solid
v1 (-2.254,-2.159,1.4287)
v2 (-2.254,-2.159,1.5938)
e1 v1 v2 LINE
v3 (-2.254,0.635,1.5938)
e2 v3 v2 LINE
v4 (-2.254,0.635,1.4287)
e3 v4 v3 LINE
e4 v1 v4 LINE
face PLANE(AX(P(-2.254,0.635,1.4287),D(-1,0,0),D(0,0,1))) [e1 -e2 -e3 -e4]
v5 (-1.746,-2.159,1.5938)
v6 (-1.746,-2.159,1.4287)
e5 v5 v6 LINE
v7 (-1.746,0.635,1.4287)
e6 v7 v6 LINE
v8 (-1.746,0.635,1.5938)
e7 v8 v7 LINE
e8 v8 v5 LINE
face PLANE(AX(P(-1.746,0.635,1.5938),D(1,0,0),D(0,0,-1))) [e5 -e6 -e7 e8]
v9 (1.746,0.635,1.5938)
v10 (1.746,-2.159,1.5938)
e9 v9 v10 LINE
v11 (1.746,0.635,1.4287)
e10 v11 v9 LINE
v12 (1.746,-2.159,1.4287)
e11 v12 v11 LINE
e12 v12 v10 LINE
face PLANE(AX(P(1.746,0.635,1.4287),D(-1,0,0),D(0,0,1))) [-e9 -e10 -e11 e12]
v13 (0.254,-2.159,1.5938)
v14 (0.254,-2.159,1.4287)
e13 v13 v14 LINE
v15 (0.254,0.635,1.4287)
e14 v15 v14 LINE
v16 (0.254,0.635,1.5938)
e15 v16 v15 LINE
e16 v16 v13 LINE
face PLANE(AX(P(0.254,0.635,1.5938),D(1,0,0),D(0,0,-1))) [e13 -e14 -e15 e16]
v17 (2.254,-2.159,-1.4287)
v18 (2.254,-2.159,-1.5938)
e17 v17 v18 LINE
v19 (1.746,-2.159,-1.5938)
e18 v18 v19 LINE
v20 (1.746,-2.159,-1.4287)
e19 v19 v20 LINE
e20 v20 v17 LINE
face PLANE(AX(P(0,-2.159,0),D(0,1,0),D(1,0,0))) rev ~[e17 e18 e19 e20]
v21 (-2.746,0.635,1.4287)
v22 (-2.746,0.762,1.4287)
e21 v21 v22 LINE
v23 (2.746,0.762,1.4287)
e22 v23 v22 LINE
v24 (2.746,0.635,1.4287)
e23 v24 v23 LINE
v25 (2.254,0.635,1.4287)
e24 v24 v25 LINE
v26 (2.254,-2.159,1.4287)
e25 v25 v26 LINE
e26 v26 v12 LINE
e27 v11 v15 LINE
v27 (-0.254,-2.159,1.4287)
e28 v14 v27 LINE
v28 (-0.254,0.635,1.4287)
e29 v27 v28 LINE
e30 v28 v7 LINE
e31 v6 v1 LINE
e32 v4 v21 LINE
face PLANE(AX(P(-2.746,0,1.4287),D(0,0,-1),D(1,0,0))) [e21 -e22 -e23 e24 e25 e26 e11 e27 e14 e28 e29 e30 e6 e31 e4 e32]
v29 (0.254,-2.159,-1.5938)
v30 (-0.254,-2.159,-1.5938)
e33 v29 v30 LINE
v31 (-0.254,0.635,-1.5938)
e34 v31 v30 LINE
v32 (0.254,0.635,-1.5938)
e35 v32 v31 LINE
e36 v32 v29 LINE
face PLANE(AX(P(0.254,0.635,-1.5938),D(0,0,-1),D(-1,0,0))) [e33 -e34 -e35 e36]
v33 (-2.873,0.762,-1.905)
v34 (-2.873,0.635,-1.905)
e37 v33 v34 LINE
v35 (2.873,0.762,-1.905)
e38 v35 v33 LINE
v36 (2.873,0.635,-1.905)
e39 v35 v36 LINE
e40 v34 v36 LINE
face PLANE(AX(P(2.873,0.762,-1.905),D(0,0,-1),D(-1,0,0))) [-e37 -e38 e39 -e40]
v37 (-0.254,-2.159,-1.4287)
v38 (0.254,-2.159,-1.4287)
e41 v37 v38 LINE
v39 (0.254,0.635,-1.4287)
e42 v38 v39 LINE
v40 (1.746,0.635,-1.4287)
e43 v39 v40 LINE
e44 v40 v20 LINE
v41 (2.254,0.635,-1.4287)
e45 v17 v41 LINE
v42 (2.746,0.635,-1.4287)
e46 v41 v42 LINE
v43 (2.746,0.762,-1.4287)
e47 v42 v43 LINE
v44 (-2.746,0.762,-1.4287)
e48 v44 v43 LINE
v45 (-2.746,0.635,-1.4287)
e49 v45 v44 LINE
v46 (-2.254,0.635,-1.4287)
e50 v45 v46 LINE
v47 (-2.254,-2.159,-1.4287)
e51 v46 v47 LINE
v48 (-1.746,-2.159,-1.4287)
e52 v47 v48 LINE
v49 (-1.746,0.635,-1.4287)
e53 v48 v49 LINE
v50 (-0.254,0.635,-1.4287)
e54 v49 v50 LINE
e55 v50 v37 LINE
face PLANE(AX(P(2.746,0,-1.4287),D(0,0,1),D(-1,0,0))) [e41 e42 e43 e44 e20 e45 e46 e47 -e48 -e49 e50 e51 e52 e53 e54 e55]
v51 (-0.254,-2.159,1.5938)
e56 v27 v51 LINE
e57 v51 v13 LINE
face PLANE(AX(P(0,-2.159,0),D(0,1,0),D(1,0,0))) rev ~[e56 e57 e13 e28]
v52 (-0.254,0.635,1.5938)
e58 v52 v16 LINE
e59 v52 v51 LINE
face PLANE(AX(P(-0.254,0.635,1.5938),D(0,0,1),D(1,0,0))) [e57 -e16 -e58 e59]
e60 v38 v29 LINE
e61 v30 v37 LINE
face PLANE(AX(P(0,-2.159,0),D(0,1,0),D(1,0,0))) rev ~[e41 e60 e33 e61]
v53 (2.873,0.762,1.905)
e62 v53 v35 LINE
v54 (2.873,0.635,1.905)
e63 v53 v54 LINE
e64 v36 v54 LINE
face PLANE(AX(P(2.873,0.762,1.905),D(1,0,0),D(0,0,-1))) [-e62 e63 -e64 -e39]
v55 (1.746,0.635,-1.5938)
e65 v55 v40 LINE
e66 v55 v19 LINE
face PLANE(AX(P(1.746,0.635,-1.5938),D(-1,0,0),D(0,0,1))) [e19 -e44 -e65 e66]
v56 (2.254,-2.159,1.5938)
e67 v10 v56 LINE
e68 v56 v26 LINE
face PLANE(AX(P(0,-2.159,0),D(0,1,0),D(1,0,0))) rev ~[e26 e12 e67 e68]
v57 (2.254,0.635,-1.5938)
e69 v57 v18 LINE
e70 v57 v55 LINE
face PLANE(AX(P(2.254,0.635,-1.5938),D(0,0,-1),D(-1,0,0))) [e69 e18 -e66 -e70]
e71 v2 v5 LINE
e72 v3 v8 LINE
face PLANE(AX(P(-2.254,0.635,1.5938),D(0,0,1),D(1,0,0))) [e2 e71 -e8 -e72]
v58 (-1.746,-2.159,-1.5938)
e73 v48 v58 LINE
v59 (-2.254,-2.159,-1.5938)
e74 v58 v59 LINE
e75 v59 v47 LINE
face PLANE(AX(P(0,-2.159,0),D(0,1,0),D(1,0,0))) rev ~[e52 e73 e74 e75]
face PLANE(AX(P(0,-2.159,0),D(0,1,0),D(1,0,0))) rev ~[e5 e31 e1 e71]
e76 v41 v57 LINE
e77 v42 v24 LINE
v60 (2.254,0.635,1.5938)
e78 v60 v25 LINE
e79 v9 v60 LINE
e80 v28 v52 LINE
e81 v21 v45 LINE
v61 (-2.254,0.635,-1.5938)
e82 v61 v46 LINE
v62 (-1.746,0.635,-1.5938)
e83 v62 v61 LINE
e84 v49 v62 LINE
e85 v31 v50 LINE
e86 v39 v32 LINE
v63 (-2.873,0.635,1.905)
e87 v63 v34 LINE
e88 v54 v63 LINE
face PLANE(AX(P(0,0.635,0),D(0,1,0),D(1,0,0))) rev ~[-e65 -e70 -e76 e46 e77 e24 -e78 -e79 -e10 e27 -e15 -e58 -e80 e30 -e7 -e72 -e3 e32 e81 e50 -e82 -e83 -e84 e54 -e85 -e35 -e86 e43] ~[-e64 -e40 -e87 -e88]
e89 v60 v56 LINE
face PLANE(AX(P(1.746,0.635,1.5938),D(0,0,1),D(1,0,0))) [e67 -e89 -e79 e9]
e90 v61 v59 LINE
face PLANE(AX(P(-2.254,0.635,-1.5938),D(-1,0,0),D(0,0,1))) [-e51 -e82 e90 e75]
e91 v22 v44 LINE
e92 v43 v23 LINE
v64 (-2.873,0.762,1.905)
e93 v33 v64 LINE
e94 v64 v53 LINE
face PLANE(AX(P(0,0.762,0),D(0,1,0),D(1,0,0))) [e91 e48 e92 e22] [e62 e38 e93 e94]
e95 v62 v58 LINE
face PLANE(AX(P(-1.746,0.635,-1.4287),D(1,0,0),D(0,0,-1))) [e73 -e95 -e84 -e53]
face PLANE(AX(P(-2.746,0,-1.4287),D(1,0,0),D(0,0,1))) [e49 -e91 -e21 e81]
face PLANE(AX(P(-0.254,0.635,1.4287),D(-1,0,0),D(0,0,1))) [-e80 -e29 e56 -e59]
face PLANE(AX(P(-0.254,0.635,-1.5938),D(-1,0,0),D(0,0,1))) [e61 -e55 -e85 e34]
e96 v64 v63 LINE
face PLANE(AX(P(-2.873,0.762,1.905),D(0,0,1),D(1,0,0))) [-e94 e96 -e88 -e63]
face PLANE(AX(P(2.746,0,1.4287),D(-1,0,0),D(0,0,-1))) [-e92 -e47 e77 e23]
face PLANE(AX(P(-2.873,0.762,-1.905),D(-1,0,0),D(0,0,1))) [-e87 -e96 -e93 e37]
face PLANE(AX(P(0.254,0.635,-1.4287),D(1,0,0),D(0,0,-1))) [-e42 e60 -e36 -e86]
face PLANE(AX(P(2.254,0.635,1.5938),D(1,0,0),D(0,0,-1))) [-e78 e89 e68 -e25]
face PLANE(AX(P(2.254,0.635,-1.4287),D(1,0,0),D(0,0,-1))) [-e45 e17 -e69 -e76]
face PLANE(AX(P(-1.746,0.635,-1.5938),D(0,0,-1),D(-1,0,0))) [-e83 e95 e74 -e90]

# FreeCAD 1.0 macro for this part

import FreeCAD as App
import Part
import Sketcher
Q = App.Units.Quantity

doc = App.newDocument("Part")
body = doc.addObject("PartDesign::Body", "Body")

# Sketch on XZ plane
sketch1 = body.newObject("Sketcher::SketchObject", "Sketch")
sketch1.AttachmentSupport = (doc.getObject("XZ_Plane"), [""])
sketch1.MapMode = "FlatFace"
sketch1.AttachmentOffset = App.Placement(App.Vector(0, 0, -0.03 * 25.4), App.Rotation())
sketch1.addGeometry(Part.LineSegment(App.Vector(2.9, -1.9, 0), App.Vector(-2.9, -1.9, 0)), False)
sketch1.addGeometry(Part.LineSegment(App.Vector(-2.9, -1.9, 0), App.Vector(-2.9, 1.9, 0)), False)
sketch1.addGeometry(Part.LineSegment(App.Vector(-2.9, 1.9, 0), App.Vector(2.9, 1.9, 0)), False)
sketch1.addGeometry(Part.LineSegment(App.Vector(2.9, 1.9, 0), App.Vector(2.9, -1.9, 0)), False)
sketch1.addConstraint(Sketcher.Constraint("Coincident", 0, 2, 1, 1))
sketch1.addConstraint(Sketcher.Constraint("Coincident", 1, 2, 2, 1))
sketch1.addConstraint(Sketcher.Constraint("Coincident", 2, 2, 3, 1))
sketch1.addConstraint(Sketcher.Constraint("Coincident", 3, 2, 0, 1))
sketch1.addConstraint(Sketcher.Constraint("Horizontal", 0))
sketch1.addConstraint(Sketcher.Constraint("Vertical", 1))
sketch1.addConstraint(Sketcher.Constraint("Horizontal", 2))
sketch1.addConstraint(Sketcher.Constraint("Vertical", 3))
sketch1.addConstraint(Sketcher.Constraint("Symmetric", 0, 2, 2, 2, -1, 1))
sketch1.addConstraint(Sketcher.Constraint("DistanceY", 1, 1, 1, 2, Q("0.15 in")))
sketch1.addConstraint(Sketcher.Constraint("DistanceX", 0, 2, 0, 1, 5.746))
pad1 = body.newObject("PartDesign::Pad", "Pad")
pad1.Profile = sketch1
pad1.Length = Q("0.115 in")

# Sketch on XZ plane
sketch2 = body.newObject("Sketcher::SketchObject", "Sketch001")
sketch2.AttachmentSupport = (doc.getObject("XZ_Plane"), [""])
sketch2.MapMode = "FlatFace"
sketch2.AttachmentOffset = App.Placement(App.Vector(0, 0, -0.025 * 25.4), App.Rotation())
sketch2.addGeometry(Part.LineSegment(App.Vector(3, -2.54, 0), App.Vector(-3, -2.54, 0)), False)
sketch2.addGeometry(Part.LineSegment(App.Vector(-3, -2.54, 0), App.Vector(-3, 2.54, 0)), False)
sketch2.addGeometry(Part.LineSegment(App.Vector(-3, 2.54, 0), App.Vector(3, 2.54, 0)), False)
sketch2.addGeometry(Part.LineSegment(App.Vector(3, 2.54, 0), App.Vector(3, -2.54, 0)), False)
sketch2.addGeometry(Part.LineSegment(App.Vector(-2.25, 1.59, 0), App.Vector(-2.25, 1.43, 0)), False)
sketch2.addGeometry(Part.LineSegment(App.Vector(-2.25, 1.43, 0), App.Vector(-1.75, 1.43, 0)), False)
sketch2.addGeometry(Part.LineSegment(App.Vector(-1.75, 1.43, 0), App.Vector(-1.75, 1.59, 0)), False)
sketch2.addGeometry(Part.LineSegment(App.Vector(-1.75, 1.59, 0), App.Vector(-2.25, 1.59, 0)), False)
sketch2.addGeometry(Part.LineSegment(App.Vector(-0.25, 1.59, 0), App.Vector(-0.25, 1.43, 0)), False)
sketch2.addGeometry(Part.LineSegment(App.Vector(-0.25, 1.43, 0), App.Vector(0.25, 1.43, 0)), False)
sketch2.addGeometry(Part.LineSegment(App.Vector(0.25, 1.43, 0), App.Vector(0.25, 1.59, 0)), False)
sketch2.addGeometry(Part.LineSegment(App.Vector(0.25, 1.59, 0), App.Vector(-0.25, 1.59, 0)), False)
sketch2.addGeometry(Part.LineSegment(App.Vector(1.75, 1.59, 0), App.Vector(1.75, 1.43, 0)), False)
sketch2.addGeometry(Part.LineSegment(App.Vector(1.75, 1.43, 0), App.Vector(2.25, 1.43, 0)), False)
sketch2.addGeometry(Part.LineSegment(App.Vector(2.25, 1.43, 0), App.Vector(2.25, 1.59, 0)), False)
sketch2.addGeometry(Part.LineSegment(App.Vector(2.25, 1.59, 0), App.Vector(1.75, 1.59, 0)), False)
sketch2.addGeometry(Part.LineSegment(App.Vector(-2.25, -1.43, 0), App.Vector(-2.25, -1.59, 0)), False)
sketch2.addGeometry(Part.LineSegment(App.Vector(-2.25, -1.59, 0), App.Vector(-1.75, -1.59, 0)), False)
sketch2.addGeometry(Part.LineSegment(App.Vector(-1.75, -1.59, 0), App.Vector(-1.75, -1.43, 0)), False)
sketch2.addGeometry(Part.LineSegment(App.Vector(-1.75, -1.43, 0), App.Vector(-2.25, -1.43, 0)), False)
sketch2.addGeometry(Part.LineSegment(App.Vector(-0.25, -1.43, 0), App.Vector(-0.25, -1.59, 0)), False)
sketch2.addGeometry(Part.LineSegment(App.Vector(-0.25, -1.59, 0), App.Vector(0.25, -1.59, 0)), False)
sketch2.addGeometry(Part.LineSegment(App.Vector(0.25, -1.59, 0), App.Vector(0.25, -1.43, 0)), False)
sketch2.addGeometry(Part.LineSegment(App.Vector(0.25, -1.43, 0), App.Vector(-0.25, -1.43, 0)), False)
sketch2.addGeometry(Part.LineSegment(App.Vector(1.75, -1.43, 0), App.Vector(1.75, -1.59, 0)), False)
sketch2.addGeometry(Part.LineSegment(App.Vector(1.75, -1.59, 0), App.Vector(2.25, -1.59, 0)), False)
sketch2.addGeometry(Part.LineSegment(App.Vector(2.25, -1.59, 0), App.Vector(2.25, -1.43, 0)), False)
sketch2.addGeometry(Part.LineSegment(App.Vector(2.25, -1.43, 0), App.Vector(1.75, -1.43, 0)), False)
sketch2.addConstraint(Sketcher.Constraint("Coincident", 0, 2, 1, 1))
sketch2.addConstraint(Sketcher.Constraint("Coincident", 1, 2, 2, 1))
sketch2.addConstraint(Sketcher.Constraint("Coincident", 2, 2, 3, 1))
sketch2.addConstraint(Sketcher.Constraint("Coincident", 3, 2, 0, 1))
sketch2.addConstraint(Sketcher.Constraint("Coincident", 4, 2, 5, 1))
sketch2.addConstraint(Sketcher.Constraint("Coincident", 5, 2, 6, 1))
sketch2.addConstraint(Sketcher.Constraint("Coincident", 6, 2, 7, 1))
sketch2.addConstraint(Sketcher.Constraint("Coincident", 7, 2, 4, 1))
sketch2.addConstraint(Sketcher.Constraint("Coincident", 8, 2, 9, 1))
sketch2.addConstraint(Sketcher.Constraint("Coincident", 9, 2, 10, 1))
sketch2.addConstraint(Sketcher.Constraint("Coincident", 10, 2, 11, 1))
sketch2.addConstraint(Sketcher.Constraint("Coincident", 11, 2, 8, 1))
sketch2.addConstraint(Sketcher.Constraint("Coincident", 12, 2, 13, 1))
sketch2.addConstraint(Sketcher.Constraint("Coincident", 13, 2, 14, 1))
sketch2.addConstraint(Sketcher.Constraint("Coincident", 14, 2, 15, 1))
sketch2.addConstraint(Sketcher.Constraint("Coincident", 15, 2, 12, 1))
sketch2.addConstraint(Sketcher.Constraint("Coincident", 16, 2, 17, 1))
sketch2.addConstraint(Sketcher.Constraint("Coincident", 17, 2, 18, 1))
sketch2.addConstraint(Sketcher.Constraint("Coincident", 18, 2, 19, 1))
sketch2.addConstraint(Sketcher.Constraint("Coincident", 19, 2, 16, 1))
sketch2.addConstraint(Sketcher.Constraint("Coincident", 20, 2, 21, 1))
sketch2.addConstraint(Sketcher.Constraint("Coincident", 21, 2, 22, 1))
sketch2.addConstraint(Sketcher.Constraint("Coincident", 22, 2, 23, 1))
sketch2.addConstraint(Sketcher.Constraint("Coincident", 23, 2, 20, 1))
sketch2.addConstraint(Sketcher.Constraint("Coincident", 24, 2, 25, 1))
sketch2.addConstraint(Sketcher.Constraint("Coincident", 25, 2, 26, 1))
sketch2.addConstraint(Sketcher.Constraint("Coincident", 26, 2, 27, 1))
sketch2.addConstraint(Sketcher.Constraint("Coincident", 27, 2, 24, 1))
sketch2.addConstraint(Sketcher.Constraint("Horizontal", 0))
sketch2.addConstraint(Sketcher.Constraint("Vertical", 1))
sketch2.addConstraint(Sketcher.Constraint("Horizontal", 2))
sketch2.addConstraint(Sketcher.Constraint("Vertical", 3))
sketch2.addConstraint(Sketcher.Constraint("Vertical", 4))
sketch2.addConstraint(Sketcher.Constraint("Horizontal", 5))
sketch2.addConstraint(Sketcher.Constraint("Vertical", 6))
sketch2.addConstraint(Sketcher.Constraint("Horizontal", 7))
sketch2.addConstraint(Sketcher.Constraint("Vertical", 8))
sketch2.addConstraint(Sketcher.Constraint("Horizontal", 9))
sketch2.addConstraint(Sketcher.Constraint("Vertical", 10))
sketch2.addConstraint(Sketcher.Constraint("Horizontal", 11))
sketch2.addConstraint(Sketcher.Constraint("Vertical", 12))
sketch2.addConstraint(Sketcher.Constraint("Horizontal", 13))
sketch2.addConstraint(Sketcher.Constraint("Vertical", 14))
sketch2.addConstraint(Sketcher.Constraint("Horizontal", 15))
sketch2.addConstraint(Sketcher.Constraint("Vertical", 16))
sketch2.addConstraint(Sketcher.Constraint("Horizontal", 17))
sketch2.addConstraint(Sketcher.Constraint("Vertical", 18))
sketch2.addConstraint(Sketcher.Constraint("Horizontal", 19))
sketch2.addConstraint(Sketcher.Constraint("Vertical", 20))
sketch2.addConstraint(Sketcher.Constraint("Horizontal", 21))
sketch2.addConstraint(Sketcher.Constraint("Vertical", 22))
sketch2.addConstraint(Sketcher.Constraint("Horizontal", 23))
sketch2.addConstraint(Sketcher.Constraint("Vertical", 24))
sketch2.addConstraint(Sketcher.Constraint("Horizontal", 25))
sketch2.addConstraint(Sketcher.Constraint("Vertical", 26))
sketch2.addConstraint(Sketcher.Constraint("Horizontal", 27))
sketch2.addConstraint(Sketcher.Constraint("Symmetric", 0, 2, 2, 2, -1, 1))
sketch2.addConstraint(Sketcher.Constraint("Symmetric", 14, 2, 16, 2, -1, 1))
sketch2.addConstraint(Sketcher.Constraint("Symmetric", 12, 2, 18, 2, -1, 1))
sketch2.addConstraint(Sketcher.Constraint("Symmetric", 10, 2, 20, 2, -1, 1))
sketch2.addConstraint(Sketcher.Constraint("Symmetric", 8, 2, 22, 2, -1, 1))
sketch2.addConstraint(Sketcher.Constraint("Symmetric", 6, 2, 24, 2, -1, 1))
sketch2.addConstraint(Sketcher.Constraint("Symmetric", 4, 2, 26, 2, -1, 1))
sketch2.addConstraint(Sketcher.Constraint("Symmetric", 5, 2, 12, 2, -2))
sketch2.addConstraint(Sketcher.Constraint("Symmetric", 7, 2, 14, 2, -2))
sketch2.addConstraint(Sketcher.Constraint("Horizontal", 5, 2, 8, 2))
sketch2.addConstraint(Sketcher.Constraint("Horizontal", 7, 2, 10, 2))
sketch2.addConstraint(Sketcher.Constraint("Vertical", 11, 2, 20, 2))
sketch2.addConstraint(Sketcher.Constraint("Equal", 7, 9))
sketch2.addConstraint(Sketcher.Constraint("DistanceY", 1, 1, 1, 2, Q("0.2 in")))
sketch2.addConstraint(Sketcher.Constraint("DistanceX", 5, 1, 5, 2, Q("0.02 in")))
sketch2.addConstraint(Sketcher.Constraint("DistanceY", 4, 2, 4, 1, Q("0.0065 in")))
sketch2.addConstraint(Sketcher.Constraint("DistanceY", 0, 2, 4, 2, Q("0.156248 in")))
sketch2.addConstraint(Sketcher.Constraint("DistanceX", 0, 2, 0, 1, 6.0))
sketch2.addConstraint(Sketcher.Constraint("DistanceX", 4, 2, -1, 1, 2.254))
pocket1 = body.newObject("PartDesign::Pocket", "Pocket")
pocket1.Profile = sketch2
pocket1.Length = Q("0.115 in")
pocket1.Reversed = True

# Sketch on XZ plane
sketch3 = body.newObject("Sketcher::SketchObject", "Sketch002")
sketch3.AttachmentSupport = (doc.getObject("XZ_Plane"), [""])
sketch3.MapMode = "FlatFace"
sketch3.addGeometry(Part.LineSegment(App.Vector(2.7, -1.4, 0), App.Vector(-2.7, -1.4, 0)), False)
sketch3.addGeometry(Part.LineSegment(App.Vector(-2.7, -1.4, 0), App.Vector(-2.7, 1.4, 0)), False)
sketch3.addGeometry(Part.LineSegment(App.Vector(-2.7, 1.4, 0), App.Vector(2.7, 1.4, 0)), False)
sketch3.addGeometry(Part.LineSegment(App.Vector(2.7, 1.4, 0), App.Vector(2.7, -1.4, 0)), False)
sketch3.addConstraint(Sketcher.Constraint("Coincident", 0, 2, 1, 1))
sketch3.addConstraint(Sketcher.Constraint("Coincident", 1, 2, 2, 1))
sketch3.addConstraint(Sketcher.Constraint("Coincident", 2, 2, 3, 1))
sketch3.addConstraint(Sketcher.Constraint("Coincident", 3, 2, 0, 1))
sketch3.addConstraint(Sketcher.Constraint("Horizontal", 0))
sketch3.addConstraint(Sketcher.Constraint("Vertical", 1))
sketch3.addConstraint(Sketcher.Constraint("Horizontal", 2))
sketch3.addConstraint(Sketcher.Constraint("Vertical", 3))
sketch3.addConstraint(Sketcher.Constraint("Symmetric", 0, 2, 2, 2, -1, 1))
sketch3.addConstraint(Sketcher.Constraint("DistanceY", 1, 1, 1, 2, Q("0.1125 in")))
sketch3.addConstraint(Sketcher.Constraint("DistanceX", 0, 2, 0, 1, 5.492))
pocket2 = body.newObject("PartDesign::Pocket", "Pocket001")
pocket2.Profile = sketch3
pocket2.Length = Q("0.085 in")

doc.recompute()
